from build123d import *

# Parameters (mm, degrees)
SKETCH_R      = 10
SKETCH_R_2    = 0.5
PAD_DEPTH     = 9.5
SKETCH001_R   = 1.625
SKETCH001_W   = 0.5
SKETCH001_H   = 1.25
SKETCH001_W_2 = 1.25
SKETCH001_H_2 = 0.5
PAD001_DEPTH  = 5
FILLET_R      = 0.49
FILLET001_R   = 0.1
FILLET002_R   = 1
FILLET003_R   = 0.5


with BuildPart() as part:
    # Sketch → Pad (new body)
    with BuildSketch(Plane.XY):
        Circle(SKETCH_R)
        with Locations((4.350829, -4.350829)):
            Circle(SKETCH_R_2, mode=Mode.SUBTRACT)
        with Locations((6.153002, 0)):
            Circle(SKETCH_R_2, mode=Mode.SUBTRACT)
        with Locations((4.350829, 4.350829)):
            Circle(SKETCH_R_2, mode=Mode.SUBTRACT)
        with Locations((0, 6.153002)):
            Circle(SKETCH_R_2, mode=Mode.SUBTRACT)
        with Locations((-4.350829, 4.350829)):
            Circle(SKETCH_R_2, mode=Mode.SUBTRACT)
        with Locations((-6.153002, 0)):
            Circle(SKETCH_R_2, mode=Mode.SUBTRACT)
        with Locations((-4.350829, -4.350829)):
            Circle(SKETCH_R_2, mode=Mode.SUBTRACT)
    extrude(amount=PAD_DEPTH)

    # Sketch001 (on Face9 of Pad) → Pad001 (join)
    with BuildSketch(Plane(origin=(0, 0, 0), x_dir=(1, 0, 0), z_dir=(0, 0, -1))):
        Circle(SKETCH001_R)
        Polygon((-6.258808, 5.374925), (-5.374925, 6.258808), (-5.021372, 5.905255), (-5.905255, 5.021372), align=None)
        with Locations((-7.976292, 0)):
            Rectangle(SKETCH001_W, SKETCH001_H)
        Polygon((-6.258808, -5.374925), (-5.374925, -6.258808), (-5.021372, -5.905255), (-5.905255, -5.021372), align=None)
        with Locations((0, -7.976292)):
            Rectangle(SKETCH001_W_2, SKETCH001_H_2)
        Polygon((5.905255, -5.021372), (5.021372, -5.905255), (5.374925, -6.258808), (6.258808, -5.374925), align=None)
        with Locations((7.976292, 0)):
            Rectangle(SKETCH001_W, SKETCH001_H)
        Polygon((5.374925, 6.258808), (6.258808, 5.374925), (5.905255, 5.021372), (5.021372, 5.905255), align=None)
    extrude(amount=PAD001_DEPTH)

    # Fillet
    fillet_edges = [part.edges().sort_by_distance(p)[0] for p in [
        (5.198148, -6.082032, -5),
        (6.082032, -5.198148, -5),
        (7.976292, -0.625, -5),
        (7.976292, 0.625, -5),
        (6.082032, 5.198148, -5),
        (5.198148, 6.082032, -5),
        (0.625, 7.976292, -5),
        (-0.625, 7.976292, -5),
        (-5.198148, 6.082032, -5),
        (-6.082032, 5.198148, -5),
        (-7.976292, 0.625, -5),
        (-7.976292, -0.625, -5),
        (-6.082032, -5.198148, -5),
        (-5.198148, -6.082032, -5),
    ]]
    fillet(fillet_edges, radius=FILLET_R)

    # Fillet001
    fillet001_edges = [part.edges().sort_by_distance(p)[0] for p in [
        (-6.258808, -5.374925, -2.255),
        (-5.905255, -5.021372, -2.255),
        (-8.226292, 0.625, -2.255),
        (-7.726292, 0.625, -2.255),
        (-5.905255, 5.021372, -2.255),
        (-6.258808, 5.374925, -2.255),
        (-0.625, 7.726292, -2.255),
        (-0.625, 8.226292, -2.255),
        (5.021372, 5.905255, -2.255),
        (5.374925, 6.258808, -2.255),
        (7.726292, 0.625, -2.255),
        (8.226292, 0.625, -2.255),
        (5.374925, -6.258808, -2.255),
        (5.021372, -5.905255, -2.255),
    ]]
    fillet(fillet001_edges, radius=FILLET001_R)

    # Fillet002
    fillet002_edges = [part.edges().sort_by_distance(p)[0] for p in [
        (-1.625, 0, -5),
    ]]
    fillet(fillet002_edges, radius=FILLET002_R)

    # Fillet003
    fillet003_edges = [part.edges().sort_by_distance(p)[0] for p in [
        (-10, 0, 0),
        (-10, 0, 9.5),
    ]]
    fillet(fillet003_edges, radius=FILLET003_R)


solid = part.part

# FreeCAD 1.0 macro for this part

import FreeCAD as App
import Part
import Sketcher


def edges_at(feature, points):
    """Names of the edges that pass closest to the given points."""
    edges = feature.Shape.Edges
    near = lambda p: min(range(len(edges)), key=lambda i: edges[i].distToShape(Part.Vertex(*p))[0])
    return sorted({f"Edge{near(p) + 1}" for p in points})


def add_polygon(sketch, points):
    """Adds a closed chain of lines whose ends are joined by coincident constraints."""
    first, n = sketch.GeometryCount, len(points)
    for a, b in zip(points, points[1:] + points[:1]):
        sketch.addGeometry(Part.LineSegment(App.Vector(*a, 0), App.Vector(*b, 0)), False)
    for i in range(n):
        sketch.addConstraint(Sketcher.Constraint("Coincident", first + i, 2, first + (i + 1) % n, 1))

doc = App.newDocument("Part")
body = doc.addObject("PartDesign::Body", "Body")

# Sketch on XY plane
sketch1 = doc.addObject("Sketcher::SketchObject", "Sketch")
body.addObject(sketch1)
sketch1.AttachmentSupport = (doc.XY_Plane, [""])
sketch1.MapMode = "FlatFace"
sketch1.addGeometry(Part.Circle(App.Vector(0, 0, 0), App.Vector(0, 0, 1), 10), False)
sketch1.addGeometry(Part.Circle(App.Vector(-4.4, -4.4, 0), App.Vector(0, 0, 1), 0.5), False)
sketch1.addGeometry(Part.Circle(App.Vector(-6.2, 0, 0), App.Vector(0, 0, 1), 0.5), False)
sketch1.addGeometry(Part.Circle(App.Vector(4.4, -4.4, 0), App.Vector(0, 0, 1), 0.5), False)
sketch1.addGeometry(Part.Circle(App.Vector(6.2, 0, 0), App.Vector(0, 0, 1), 0.5), False)
sketch1.addGeometry(Part.Circle(App.Vector(-4.4, 4.4, 0), App.Vector(0, 0, 1), 0.5), False)
sketch1.addGeometry(Part.Circle(App.Vector(0, 6.2, 0), App.Vector(0, 0, 1), 0.5), False)
sketch1.addGeometry(Part.Circle(App.Vector(4.4, 4.4, 0), App.Vector(0, 0, 1), 0.5), False)
sketch1.addConstraint(Sketcher.Constraint("Coincident", 0, 3, -1, 1))
sketch1.addConstraint(Sketcher.Constraint("Equal", 1, 2))
sketch1.addConstraint(Sketcher.Constraint("Equal", 2, 3))
sketch1.addConstraint(Sketcher.Constraint("Equal", 3, 4))
sketch1.addConstraint(Sketcher.Constraint("Equal", 4, 5))
sketch1.addConstraint(Sketcher.Constraint("Equal", 5, 6))
sketch1.addConstraint(Sketcher.Constraint("Equal", 6, 7))
sketch1.addConstraint(Sketcher.Constraint("Symmetric", 2, 3, 4, 3, -1, 1))
sketch1.addConstraint(Sketcher.Constraint("Symmetric", 3, 3, 5, 3, -1, 1))
sketch1.addConstraint(Sketcher.Constraint("Symmetric", 1, 3, 7, 3, -1, 1))
sketch1.addConstraint(Sketcher.Constraint("Symmetric", 1, 3, 3, 3, -2))
sketch1.addConstraint(Sketcher.Constraint("PointOnObject", 2, 3, -1))
sketch1.addConstraint(Sketcher.Constraint("PointOnObject", 6, 3, -2))
sketch1.addConstraint(Sketcher.Constraint("Diameter", 0, 20.0))
sketch1.addConstraint(Sketcher.Constraint("Diameter", 1, 1.0))
sketch1.addConstraint(Sketcher.Constraint("DistanceX", 1, 3, -1, 1, 4.350829))
sketch1.addConstraint(Sketcher.Constraint("DistanceY", 1, 3, -1, 1, 4.350829))
sketch1.addConstraint(Sketcher.Constraint("DistanceX", 2, 3, 3, 3, 10.503831))
sketch1.addConstraint(Sketcher.Constraint("DistanceY", 1, 3, 6, 3, 10.503831))
pad1 = doc.addObject("PartDesign::Pad", "Pad")
body.addObject(pad1)
pad1.Profile = sketch1
pad1.Length = 9.5

# Sketch on XY plane
sketch2 = doc.addObject("Sketcher::SketchObject", "Sketch001")
body.addObject(sketch2)
sketch2.AttachmentSupport = (doc.XY_Plane, [""])
sketch2.MapMode = "FlatFace"
sketch2.addGeometry(Part.Circle(App.Vector(0, 0, 0), App.Vector(0, 0, 1), 1.62), False)  # 0
add_polygon(sketch2, [(-5.37, -6.26), (-6.26, -5.37), (-5.91, -5.02), (-5.02, -5.91)])  # lines 1-4
add_polygon(sketch2, [(-8.23, -0.62), (-8.23, 0.62), (-7.73, 0.62), (-7.73, -0.62)])  # lines 5-8
add_polygon(sketch2, [(-6.26, 5.37), (-5.37, 6.26), (-5.02, 5.91), (-5.91, 5.02)])  # lines 9-12
add_polygon(sketch2, [(-0.62, 7.73), (-0.62, 8.23), (0.62, 8.23), (0.62, 7.73)])  # lines 13-16
add_polygon(sketch2, [(5.91, 5.02), (5.02, 5.91), (5.37, 6.26), (6.26, 5.37)])  # lines 17-20
add_polygon(sketch2, [(7.73, -0.62), (7.73, 0.62), (8.23, 0.62), (8.23, -0.62)])  # lines 21-24
add_polygon(sketch2, [(6.26, -5.37), (5.37, -6.26), (5.02, -5.91), (5.91, -5.02)])  # lines 25-28
sketch2.addConstraint(Sketcher.Constraint("Vertical", 5))
sketch2.addConstraint(Sketcher.Constraint("Horizontal", 6))
sketch2.addConstraint(Sketcher.Constraint("Vertical", 7))
sketch2.addConstraint(Sketcher.Constraint("Horizontal", 8))
sketch2.addConstraint(Sketcher.Constraint("Vertical", 13))
sketch2.addConstraint(Sketcher.Constraint("Horizontal", 14))
sketch2.addConstraint(Sketcher.Constraint("Vertical", 15))
sketch2.addConstraint(Sketcher.Constraint("Horizontal", 16))
sketch2.addConstraint(Sketcher.Constraint("Vertical", 21))
sketch2.addConstraint(Sketcher.Constraint("Horizontal", 22))
sketch2.addConstraint(Sketcher.Constraint("Vertical", 23))
sketch2.addConstraint(Sketcher.Constraint("Horizontal", 24))
sketch2.addConstraint(Sketcher.Constraint("Coincident", 0, 3, -1, 1))
sketch2.addConstraint(Sketcher.Constraint("Symmetric", 3, 2, 17, 2, -1, 1))
sketch2.addConstraint(Sketcher.Constraint("Symmetric", 4, 2, 18, 2, -1, 1))
sketch2.addConstraint(Sketcher.Constraint("Symmetric", 1, 2, 19, 2, -1, 1))
sketch2.addConstraint(Sketcher.Constraint("Symmetric", 2, 2, 20, 2, -1, 1))
sketch2.addConstraint(Sketcher.Constraint("Symmetric", 7, 2, 21, 2, -1, 1))
sketch2.addConstraint(Sketcher.Constraint("Symmetric", 5, 2, 23, 2, -1, 1))
sketch2.addConstraint(Sketcher.Constraint("Symmetric", 9, 2, 25, 2, -1, 1))
sketch2.addConstraint(Sketcher.Constraint("Symmetric", 10, 2, 26, 2, -1, 1))
sketch2.addConstraint(Sketcher.Constraint("Symmetric", 11, 2, 27, 2, -1, 1))
sketch2.addConstraint(Sketcher.Constraint("Symmetric", 12, 2, 28, 2, -1, 1))
sketch2.addConstraint(Sketcher.Constraint("Symmetric", 10, 2, 17, 2, -2))
sketch2.addConstraint(Sketcher.Constraint("Symmetric", 9, 2, 18, 2, -2))
sketch2.addConstraint(Sketcher.Constraint("Symmetric", 12, 2, 19, 2, -2))
sketch2.addConstraint(Sketcher.Constraint("Symmetric", 11, 2, 20, 2, -2))
sketch2.addConstraint(Sketcher.Constraint("Perpendicular", 1, 2))
sketch2.addConstraint(Sketcher.Constraint("Perpendicular", 2, 3))
sketch2.addConstraint(Sketcher.Constraint("Perpendicular", 3, 4))
sketch2.addConstraint(Sketcher.Constraint("Parallel", 4, 9))
sketch2.addConstraint(Sketcher.Constraint("Horizontal", 6, 2, 21, 2))
sketch2.addConstraint(Sketcher.Constraint("Equal", 16, 5))
sketch2.addConstraint(Sketcher.Constraint("Equal", 24, 13))
sketch2.addConstraint(Sketcher.Constraint("Diameter", 0, 3.25))
sketch2.addConstraint(Sketcher.Constraint("DistanceX", 6, 1, 6, 2, 0.5))
sketch2.addConstraint(Sketcher.Constraint("Distance", 2, 0.499999))
sketch2.addConstraint(Sketcher.Constraint("DistanceX", 14, 1, 14, 2, 1.25))
sketch2.addConstraint(Sketcher.Constraint("Distance", 1, 1.249999))
sketch2.addConstraint(Sketcher.Constraint("DistanceX", 13, 2, -1, 1, 0.625))
sketch2.addConstraint(Sketcher.Constraint("DistanceX", 5, 2, 3, 2, 3.20492))
sketch2.addConstraint(Sketcher.Constraint("DistanceY", 11, 2, 13, 2, 3.20492))
sketch2.addConstraint(Sketcher.Constraint("DistanceX", 1, 2, -1, 1, 6.258808))
sketch2.addConstraint(Sketcher.Constraint("DistanceY", 1, 2, -1, 1, 5.374925))
pad2 = doc.addObject("PartDesign::Pad", "Pad001")
body.addObject(pad2)
pad2.Profile = sketch2
pad2.Length = 5
pad2.Reversed = True
doc.recompute()

fillet = doc.addObject("PartDesign::Fillet", "Fillet")
body.addObject(fillet)
fillet.Base = (pad2, edges_at(pad2, [
    (5.198, -6.082, -5),
    (6.082, -5.198, -5),
    (7.976, -0.625, -5),
    (7.976, 0.625, -5),
    (6.082, 5.198, -5),
    (5.198, 6.082, -5),
    (0.625, 7.976, -5),
    (-0.625, 7.976, -5),
    (-5.198, 6.082, -5),
    (-6.082, 5.198, -5),
    (-7.976, 0.625, -5),
    (-7.976, -0.625, -5),
    (-6.082, -5.198, -5),
    (-5.198, -6.082, -5),
]))
fillet.Radius = 0.49
doc.recompute()

fillet2 = doc.addObject("PartDesign::Fillet", "Fillet001")
body.addObject(fillet2)
fillet2.Base = (fillet, edges_at(fillet, [
    (-6.259, -5.375, -2.255),
    (-5.905, -5.021, -2.255),
    (-8.226, 0.625, -2.255),
    (-7.726, 0.625, -2.255),
    (-5.905, 5.021, -2.255),
    (-6.259, 5.375, -2.255),
    (-0.625, 7.726, -2.255),
    (-0.625, 8.226, -2.255),
    (5.021, 5.905, -2.255),
    (5.375, 6.259, -2.255),
    (7.726, 0.625, -2.255),
    (8.226, 0.625, -2.255),
    (5.375, -6.259, -2.255),
    (5.021, -5.905, -2.255),
]))
fillet2.Radius = 0.1
doc.recompute()

fillet3 = doc.addObject("PartDesign::Fillet", "Fillet002")
body.addObject(fillet3)
fillet3.Base = (fillet2, edges_at(fillet2, [(-1.625, 0, -5)]))
fillet3.Radius = 1
doc.recompute()

fillet4 = doc.addObject("PartDesign::Fillet", "Fillet003")
body.addObject(fillet4)
fillet4.Base = (fillet3, edges_at(fillet3, [(-10, 0, 0), (-10, 0, 9.5)]))
fillet4.Radius = 0.5

doc.recompute()
